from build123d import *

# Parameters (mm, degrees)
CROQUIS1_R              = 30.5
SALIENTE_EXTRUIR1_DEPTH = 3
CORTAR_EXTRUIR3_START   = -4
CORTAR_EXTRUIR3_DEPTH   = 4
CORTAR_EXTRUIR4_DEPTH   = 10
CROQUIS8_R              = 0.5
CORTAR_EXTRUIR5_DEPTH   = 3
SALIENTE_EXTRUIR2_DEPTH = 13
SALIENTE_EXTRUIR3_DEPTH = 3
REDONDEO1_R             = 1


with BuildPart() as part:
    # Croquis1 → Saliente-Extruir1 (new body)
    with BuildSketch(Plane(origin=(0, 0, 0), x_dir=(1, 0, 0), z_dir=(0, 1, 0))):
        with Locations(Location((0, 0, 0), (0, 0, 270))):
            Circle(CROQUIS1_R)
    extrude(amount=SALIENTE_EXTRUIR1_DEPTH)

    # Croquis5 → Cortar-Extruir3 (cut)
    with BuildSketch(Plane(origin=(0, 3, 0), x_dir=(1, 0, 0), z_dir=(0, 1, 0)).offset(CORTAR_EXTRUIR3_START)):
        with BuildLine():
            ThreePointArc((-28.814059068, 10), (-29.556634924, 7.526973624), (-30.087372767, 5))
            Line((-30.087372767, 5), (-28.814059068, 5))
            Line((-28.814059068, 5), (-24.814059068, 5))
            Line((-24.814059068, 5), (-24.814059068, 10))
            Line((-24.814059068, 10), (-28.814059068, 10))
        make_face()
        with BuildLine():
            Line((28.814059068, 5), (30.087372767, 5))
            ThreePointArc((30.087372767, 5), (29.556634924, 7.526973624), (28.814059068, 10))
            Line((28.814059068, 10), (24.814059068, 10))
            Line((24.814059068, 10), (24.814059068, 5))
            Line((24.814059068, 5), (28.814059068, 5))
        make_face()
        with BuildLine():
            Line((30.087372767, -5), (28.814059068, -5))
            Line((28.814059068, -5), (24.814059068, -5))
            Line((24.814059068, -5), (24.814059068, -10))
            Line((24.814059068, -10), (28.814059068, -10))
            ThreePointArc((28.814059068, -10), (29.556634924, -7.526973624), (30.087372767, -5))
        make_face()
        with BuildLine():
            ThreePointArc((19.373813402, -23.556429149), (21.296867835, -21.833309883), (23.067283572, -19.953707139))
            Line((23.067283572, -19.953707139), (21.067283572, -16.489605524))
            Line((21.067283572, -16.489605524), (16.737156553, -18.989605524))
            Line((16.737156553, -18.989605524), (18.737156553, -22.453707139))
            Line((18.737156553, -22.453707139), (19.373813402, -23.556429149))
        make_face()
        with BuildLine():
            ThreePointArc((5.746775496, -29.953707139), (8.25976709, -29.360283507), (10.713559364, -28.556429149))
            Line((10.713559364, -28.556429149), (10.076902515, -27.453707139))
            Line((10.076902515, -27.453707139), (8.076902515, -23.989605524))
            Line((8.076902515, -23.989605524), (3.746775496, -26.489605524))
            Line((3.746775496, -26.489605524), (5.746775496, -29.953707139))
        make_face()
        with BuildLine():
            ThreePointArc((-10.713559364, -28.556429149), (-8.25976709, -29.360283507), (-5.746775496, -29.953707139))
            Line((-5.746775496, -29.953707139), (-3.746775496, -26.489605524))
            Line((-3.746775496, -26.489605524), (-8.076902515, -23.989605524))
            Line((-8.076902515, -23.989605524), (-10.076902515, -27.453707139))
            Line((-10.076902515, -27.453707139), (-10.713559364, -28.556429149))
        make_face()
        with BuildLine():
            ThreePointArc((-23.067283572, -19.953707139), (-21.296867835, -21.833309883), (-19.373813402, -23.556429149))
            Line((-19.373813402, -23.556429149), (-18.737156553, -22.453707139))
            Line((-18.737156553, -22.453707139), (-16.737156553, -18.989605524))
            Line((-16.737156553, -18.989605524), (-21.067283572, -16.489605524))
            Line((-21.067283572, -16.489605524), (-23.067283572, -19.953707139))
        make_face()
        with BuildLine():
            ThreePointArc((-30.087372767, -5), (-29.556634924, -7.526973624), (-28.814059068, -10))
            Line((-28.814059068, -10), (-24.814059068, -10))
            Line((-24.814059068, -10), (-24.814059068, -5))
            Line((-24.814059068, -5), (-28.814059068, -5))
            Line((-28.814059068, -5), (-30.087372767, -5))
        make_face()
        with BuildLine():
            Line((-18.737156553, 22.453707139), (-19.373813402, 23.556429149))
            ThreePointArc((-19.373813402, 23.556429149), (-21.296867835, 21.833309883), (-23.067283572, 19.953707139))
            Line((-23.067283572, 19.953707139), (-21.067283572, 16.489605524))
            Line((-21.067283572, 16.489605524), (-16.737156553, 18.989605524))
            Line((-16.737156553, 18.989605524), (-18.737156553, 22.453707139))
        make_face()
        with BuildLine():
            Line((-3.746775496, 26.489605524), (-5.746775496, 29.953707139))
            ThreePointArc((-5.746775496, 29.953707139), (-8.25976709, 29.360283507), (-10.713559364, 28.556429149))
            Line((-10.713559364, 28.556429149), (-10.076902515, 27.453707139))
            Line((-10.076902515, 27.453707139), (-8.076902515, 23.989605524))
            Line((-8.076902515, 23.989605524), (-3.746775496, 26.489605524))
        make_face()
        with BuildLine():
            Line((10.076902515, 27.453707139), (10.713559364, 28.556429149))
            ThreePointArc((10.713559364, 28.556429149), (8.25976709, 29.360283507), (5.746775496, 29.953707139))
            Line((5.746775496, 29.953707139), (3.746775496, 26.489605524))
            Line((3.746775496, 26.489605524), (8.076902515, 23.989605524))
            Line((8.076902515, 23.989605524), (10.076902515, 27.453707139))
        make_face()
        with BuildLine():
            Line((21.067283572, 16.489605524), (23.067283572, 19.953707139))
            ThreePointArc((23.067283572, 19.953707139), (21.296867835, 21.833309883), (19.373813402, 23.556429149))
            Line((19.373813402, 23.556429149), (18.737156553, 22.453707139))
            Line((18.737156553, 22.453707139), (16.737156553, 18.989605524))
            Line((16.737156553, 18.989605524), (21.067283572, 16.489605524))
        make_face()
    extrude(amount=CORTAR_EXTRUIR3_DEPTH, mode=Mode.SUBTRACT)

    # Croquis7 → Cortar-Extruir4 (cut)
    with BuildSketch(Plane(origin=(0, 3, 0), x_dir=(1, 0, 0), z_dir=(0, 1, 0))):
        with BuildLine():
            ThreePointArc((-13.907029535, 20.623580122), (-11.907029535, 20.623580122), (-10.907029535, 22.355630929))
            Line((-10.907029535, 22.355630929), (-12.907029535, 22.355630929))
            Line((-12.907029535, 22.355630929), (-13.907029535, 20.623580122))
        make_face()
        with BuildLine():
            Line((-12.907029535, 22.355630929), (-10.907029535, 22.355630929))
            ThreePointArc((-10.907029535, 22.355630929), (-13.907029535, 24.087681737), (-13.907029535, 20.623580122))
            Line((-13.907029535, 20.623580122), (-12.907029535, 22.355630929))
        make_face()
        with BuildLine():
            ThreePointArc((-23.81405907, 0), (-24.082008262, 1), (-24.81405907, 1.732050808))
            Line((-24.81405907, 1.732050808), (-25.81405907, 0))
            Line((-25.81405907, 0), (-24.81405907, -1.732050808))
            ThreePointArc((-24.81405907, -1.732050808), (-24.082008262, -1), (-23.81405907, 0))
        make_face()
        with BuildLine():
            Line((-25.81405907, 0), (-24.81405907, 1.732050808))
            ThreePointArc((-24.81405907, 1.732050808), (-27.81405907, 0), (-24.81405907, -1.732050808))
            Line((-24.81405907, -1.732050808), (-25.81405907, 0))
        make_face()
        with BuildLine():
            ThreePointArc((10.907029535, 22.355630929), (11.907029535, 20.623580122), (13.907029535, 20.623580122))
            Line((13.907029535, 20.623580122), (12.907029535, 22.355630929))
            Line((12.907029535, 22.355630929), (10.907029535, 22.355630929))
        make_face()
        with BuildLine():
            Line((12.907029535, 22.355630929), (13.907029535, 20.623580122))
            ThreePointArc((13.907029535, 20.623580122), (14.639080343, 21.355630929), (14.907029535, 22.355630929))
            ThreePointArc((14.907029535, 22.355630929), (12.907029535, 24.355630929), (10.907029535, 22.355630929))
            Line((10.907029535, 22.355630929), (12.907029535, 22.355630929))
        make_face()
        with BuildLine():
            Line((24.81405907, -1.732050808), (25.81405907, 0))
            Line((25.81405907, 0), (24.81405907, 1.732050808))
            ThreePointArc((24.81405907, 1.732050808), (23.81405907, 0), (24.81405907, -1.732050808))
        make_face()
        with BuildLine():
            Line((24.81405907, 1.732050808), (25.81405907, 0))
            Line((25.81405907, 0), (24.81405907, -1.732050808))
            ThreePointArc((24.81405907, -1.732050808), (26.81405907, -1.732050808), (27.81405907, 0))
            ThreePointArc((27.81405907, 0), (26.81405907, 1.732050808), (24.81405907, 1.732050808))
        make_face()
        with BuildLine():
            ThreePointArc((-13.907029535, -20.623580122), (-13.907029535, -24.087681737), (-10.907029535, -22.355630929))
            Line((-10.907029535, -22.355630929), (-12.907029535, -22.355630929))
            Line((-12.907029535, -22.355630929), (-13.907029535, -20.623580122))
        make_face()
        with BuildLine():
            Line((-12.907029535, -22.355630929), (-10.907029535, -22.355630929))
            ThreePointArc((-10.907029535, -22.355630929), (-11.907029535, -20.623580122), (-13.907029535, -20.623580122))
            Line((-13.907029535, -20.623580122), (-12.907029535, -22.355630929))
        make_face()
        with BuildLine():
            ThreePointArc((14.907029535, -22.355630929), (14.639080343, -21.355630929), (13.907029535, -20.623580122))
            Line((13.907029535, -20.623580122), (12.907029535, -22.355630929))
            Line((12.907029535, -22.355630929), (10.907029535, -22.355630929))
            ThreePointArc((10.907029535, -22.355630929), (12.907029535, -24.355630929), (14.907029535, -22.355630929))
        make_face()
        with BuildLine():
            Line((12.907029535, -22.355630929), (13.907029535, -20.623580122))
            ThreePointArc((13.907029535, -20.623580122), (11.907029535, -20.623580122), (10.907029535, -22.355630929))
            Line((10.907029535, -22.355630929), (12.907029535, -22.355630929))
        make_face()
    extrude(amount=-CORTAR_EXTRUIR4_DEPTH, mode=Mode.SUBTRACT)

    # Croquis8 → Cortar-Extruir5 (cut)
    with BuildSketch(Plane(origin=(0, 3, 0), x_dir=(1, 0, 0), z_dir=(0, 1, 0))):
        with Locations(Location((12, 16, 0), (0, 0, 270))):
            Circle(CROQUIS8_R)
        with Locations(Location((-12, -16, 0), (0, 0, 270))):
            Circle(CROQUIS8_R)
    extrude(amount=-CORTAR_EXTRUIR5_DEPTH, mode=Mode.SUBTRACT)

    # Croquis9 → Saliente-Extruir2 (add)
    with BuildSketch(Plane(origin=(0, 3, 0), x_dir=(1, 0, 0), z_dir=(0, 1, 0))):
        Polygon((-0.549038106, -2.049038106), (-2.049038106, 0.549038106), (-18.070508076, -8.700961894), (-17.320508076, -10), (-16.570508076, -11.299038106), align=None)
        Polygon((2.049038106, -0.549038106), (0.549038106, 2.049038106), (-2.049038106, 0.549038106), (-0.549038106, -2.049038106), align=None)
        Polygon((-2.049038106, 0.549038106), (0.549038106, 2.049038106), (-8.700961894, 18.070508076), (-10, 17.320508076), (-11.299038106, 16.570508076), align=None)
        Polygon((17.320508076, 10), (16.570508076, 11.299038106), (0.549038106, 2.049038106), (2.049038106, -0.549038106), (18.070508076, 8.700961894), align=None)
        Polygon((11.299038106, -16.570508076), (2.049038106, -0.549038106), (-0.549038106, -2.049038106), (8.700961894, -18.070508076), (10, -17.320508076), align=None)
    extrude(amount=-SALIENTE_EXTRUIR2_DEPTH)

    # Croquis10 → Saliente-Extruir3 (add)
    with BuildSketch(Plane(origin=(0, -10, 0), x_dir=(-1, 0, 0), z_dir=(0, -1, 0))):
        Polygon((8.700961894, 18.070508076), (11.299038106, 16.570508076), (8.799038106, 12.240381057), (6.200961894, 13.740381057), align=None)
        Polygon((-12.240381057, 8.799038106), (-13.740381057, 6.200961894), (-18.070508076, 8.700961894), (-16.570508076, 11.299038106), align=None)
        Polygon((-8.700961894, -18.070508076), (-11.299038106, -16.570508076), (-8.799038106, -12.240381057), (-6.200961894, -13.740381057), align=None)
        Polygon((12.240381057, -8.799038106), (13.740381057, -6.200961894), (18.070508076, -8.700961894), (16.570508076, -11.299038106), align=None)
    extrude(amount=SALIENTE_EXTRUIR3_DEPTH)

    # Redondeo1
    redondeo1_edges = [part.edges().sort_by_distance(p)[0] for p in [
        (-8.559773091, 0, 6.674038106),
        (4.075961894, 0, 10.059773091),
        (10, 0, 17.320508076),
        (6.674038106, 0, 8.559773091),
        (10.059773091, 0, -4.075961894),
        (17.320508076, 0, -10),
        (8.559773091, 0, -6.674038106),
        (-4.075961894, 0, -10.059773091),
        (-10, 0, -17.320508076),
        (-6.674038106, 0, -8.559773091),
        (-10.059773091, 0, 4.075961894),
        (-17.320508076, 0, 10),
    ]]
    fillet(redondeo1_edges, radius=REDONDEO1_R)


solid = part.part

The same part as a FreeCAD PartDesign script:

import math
import FreeCAD as App
import Part
import Sketcher
from FreeCAD import Vector
Q = App.Units.Quantity


def edges_at(feature, points):
    """Names of the edges that pass closest to the given points."""
    edges = feature.Shape.Edges
    near = lambda p: min(range(len(edges)), key=lambda i: edges[i].distToShape(Part.Vertex(*p))[0])
    return sorted({f"Edge{near(p) + 1}" for p in points})


def add_polygon(sketch, points):
    """Adds a closed chain of lines whose ends are joined by coincident constraints."""
    first, n = sketch.GeometryCount, len(points)
    for a, b in zip(points, points[1:] + points[:1]):
        sketch.addGeometry(Part.LineSegment(App.Vector(*a, 0), App.Vector(*b, 0)), False)
    for i in range(n):
        sketch.addConstraint(Sketcher.Constraint("Coincident", first + i, 2, first + (i + 1) % n, 1))

doc = App.newDocument("Part")
body = doc.addObject("PartDesign::Body", "Body")

sketch1 = body.newObject("Sketcher::SketchObject", "Sketch")
sketch1.AttachmentSupport = (doc.getObject("XZ_Plane"), [""])
sketch1.MapMode = "FlatFace"
sketch1.addGeometry(Part.Circle(Vector(0, 0, 0), Vector(0, 0, 1), 30), False)
sketch1.addConstraint(Sketcher.Constraint("Coincident", 0, 3, -1, 1))
sketch1.addConstraint(Sketcher.Constraint("Diameter", 0, Q("61 mm")))
pad1 = body.newObject("PartDesign::Pad", "Pad")
pad1.Profile = sketch1
pad1.Length = 3
pad1.Reversed = True

sketch2 = body.newObject("Sketcher::SketchObject", "Sketch001")
sketch2.AttachmentSupport = (doc.getObject("XZ_Plane"), [""])
sketch2.MapMode = "FlatFace"
sketch2.AttachmentOffset = App.Placement(Vector(0, 0, 1), App.Rotation())
sketch2.addGeometry(Part.ArcOfCircle(Part.Circle(Vector(0, 0, 0), Vector(0, 0, 1), 30.5), math.radians(-170.56), math.radians(-160.86)), False)
sketch2.addGeometry(Part.LineSegment(Vector(-30.1, -5, 0), Vector(-24.8, -5, 0)), False)
sketch2.addGeometry(Part.LineSegment(Vector(-24.8, -5, 0), Vector(-24.8, -10, 0)), False)
sketch2.addGeometry(Part.LineSegment(Vector(-24.8, -10, 0), Vector(-28.8, -10, 0)), False)
sketch2.addGeometry(Part.ArcOfCircle(Part.Circle(Vector(0, 0, 0), Vector(0, 0, 1), 30.5), math.radians(-19.14), math.radians(-9.44)), False)
sketch2.addGeometry(Part.LineSegment(Vector(28.8, -10, 0), Vector(24.8, -10, 0)), False)
sketch2.addGeometry(Part.LineSegment(Vector(24.8, -10, 0), Vector(24.8, -5, 0)), False)
sketch2.addGeometry(Part.LineSegment(Vector(24.8, -5, 0), Vector(30.1, -5, 0)), False)
sketch2.addGeometry(Part.LineSegment(Vector(30.1, 5, 0), Vector(24.8, 5, 0)), False)
sketch2.addGeometry(Part.LineSegment(Vector(24.8, 5, 0), Vector(24.8, 10, 0)), False)
sketch2.addGeometry(Part.LineSegment(Vector(24.8, 10, 0), Vector(28.8, 10, 0)), False)
sketch2.addGeometry(Part.ArcOfCircle(Part.Circle(Vector(0, 0, 0), Vector(0, 0, 1), 30.5), math.radians(9.44), math.radians(19.14)), False)
sketch2.addGeometry(Part.ArcOfCircle(Part.Circle(Vector(0, 0, 0), Vector(0, 0, 1), 30.5), math.radians(40.86), math.radians(50.56)), False)
sketch2.addGeometry(Part.LineSegment(Vector(23.1, 20, 0), Vector(21.1, 16.5, 0)), False)
sketch2.addGeometry(Part.LineSegment(Vector(21.1, 16.5, 0), Vector(16.7, 19, 0)), False)
sketch2.addGeometry(Part.LineSegment(Vector(16.7, 19, 0), Vector(18.7, 22.5, 0)), False)
sketch2.addGeometry(Part.LineSegment(Vector(18.7, 22.5, 0), Vector(19.4, 23.6, 0)), False)
sketch2.addGeometry(Part.ArcOfCircle(Part.Circle(Vector(0, 0, 0), Vector(0, 0, 1), 30.5), math.radians(69.44), math.radians(79.14)), False)
sketch2.addGeometry(Part.LineSegment(Vector(10.7, 28.6, 0), Vector(10.1, 27.5, 0)), False)
sketch2.addGeometry(Part.LineSegment(Vector(10.1, 27.5, 0), Vector(8.1, 24, 0)), False)
sketch2.addGeometry(Part.LineSegment(Vector(8.1, 24, 0), Vector(3.7, 26.5, 0)), False)
sketch2.addGeometry(Part.LineSegment(Vector(3.7, 26.5, 0), Vector(5.7, 30, 0)), False)
sketch2.addGeometry(Part.ArcOfCircle(Part.Circle(Vector(0, 0, 0), Vector(0, 0, 1), 30.5), math.radians(100.86), math.radians(110.56)), False)
sketch2.addGeometry(Part.LineSegment(Vector(-5.7, 30, 0), Vector(-3.7, 26.5, 0)), False)
sketch2.addGeometry(Part.LineSegment(Vector(-3.7, 26.5, 0), Vector(-8.1, 24, 0)), False)
sketch2.addGeometry(Part.LineSegment(Vector(-8.1, 24, 0), Vector(-10.1, 27.5, 0)), False)
sketch2.addGeometry(Part.LineSegment(Vector(-10.1, 27.5, 0), Vector(-10.7, 28.6, 0)), False)
sketch2.addGeometry(Part.ArcOfCircle(Part.Circle(Vector(0, 0, 0), Vector(0, 0, 1), 30.5), math.radians(129.44), math.radians(139.14)), False)
sketch2.addGeometry(Part.LineSegment(Vector(-19.4, 23.6, 0), Vector(-18.7, 22.5, 0)), False)
sketch2.addGeometry(Part.LineSegment(Vector(-18.7, 22.5, 0), Vector(-16.7, 19, 0)), False)
sketch2.addGeometry(Part.LineSegment(Vector(-16.7, 19, 0), Vector(-21.1, 16.5, 0)), False)
sketch2.addGeometry(Part.LineSegment(Vector(-21.1, 16.5, 0), Vector(-23.1, 20, 0)), False)
sketch2.addGeometry(Part.ArcOfCircle(Part.Circle(Vector(0, 0, 0), Vector(0, 0, 1), 30.5), math.radians(160.86), math.radians(170.56)), False)
sketch2.addGeometry(Part.LineSegment(Vector(-28.8, 10, 0), Vector(-24.8, 10, 0)), False)
sketch2.addGeometry(Part.LineSegment(Vector(-24.8, 10, 0), Vector(-24.8, 5, 0)), False)
sketch2.addGeometry(Part.LineSegment(Vector(-24.8, 5, 0), Vector(-30.1, 5, 0)), False)
sketch2.addGeometry(Part.LineSegment(Vector(-18.7, -22.5, 0), Vector(-19.4, -23.6, 0)), False)
sketch2.addGeometry(Part.ArcOfCircle(Part.Circle(Vector(0, 0, 0), Vector(0, 0, 1), 30.5), math.radians(-139.14), math.radians(-129.44)), False)
sketch2.addGeometry(Part.LineSegment(Vector(-23.1, -20, 0), Vector(-21.1, -16.5, 0)), False)
sketch2.addGeometry(Part.LineSegment(Vector(-21.1, -16.5, 0), Vector(-16.7, -19, 0)), False)
sketch2.addGeometry(Part.LineSegment(Vector(-16.7, -19, 0), Vector(-18.7, -22.5, 0)), False)
sketch2.addGeometry(Part.LineSegment(Vector(-3.7, -26.5, 0), Vector(-5.7, -30, 0)), False)
sketch2.addGeometry(Part.ArcOfCircle(Part.Circle(Vector(0, 0, 0), Vector(0, 0, 1), 30.5), math.radians(-110.56), math.radians(-100.86)), False)
sketch2.addGeometry(Part.LineSegment(Vector(-10.7, -28.6, 0), Vector(-10.1, -27.5, 0)), False)
sketch2.addGeometry(Part.LineSegment(Vector(-10.1, -27.5, 0), Vector(-8.1, -24, 0)), False)
sketch2.addGeometry(Part.LineSegment(Vector(-8.1, -24, 0), Vector(-3.7, -26.5, 0)), False)
sketch2.addGeometry(Part.LineSegment(Vector(10.1, -27.5, 0), Vector(10.7, -28.6, 0)), False)
sketch2.addGeometry(Part.ArcOfCircle(Part.Circle(Vector(0, 0, 0), Vector(0, 0, 1), 30.5), math.radians(-79.14), math.radians(-69.44)), False)
sketch2.addGeometry(Part.LineSegment(Vector(5.7, -30, 0), Vector(3.7, -26.5, 0)), False)
sketch2.addGeometry(Part.LineSegment(Vector(3.7, -26.5, 0), Vector(8.1, -24, 0)), False)
sketch2.addGeometry(Part.LineSegment(Vector(8.1, -24, 0), Vector(10.1, -27.5, 0)), False)
sketch2.addGeometry(Part.LineSegment(Vector(21.1, -16.5, 0), Vector(23.1, -20, 0)), False)
sketch2.addGeometry(Part.ArcOfCircle(Part.Circle(Vector(0, 0, 0), Vector(0, 0, 1), 30.5), math.radians(-50.56), math.radians(-40.86)), False)
sketch2.addGeometry(Part.LineSegment(Vector(19.4, -23.6, 0), Vector(18.7, -22.5, 0)), False)
sketch2.addGeometry(Part.LineSegment(Vector(18.7, -22.5, 0), Vector(16.7, -19, 0)), False)
sketch2.addGeometry(Part.LineSegment(Vector(16.7, -19, 0), Vector(21.1, -16.5, 0)), False)
sketch2.addConstraint(Sketcher.Constraint("Coincident", 0, 1, 1, 1))
sketch2.addConstraint(Sketcher.Constraint("Coincident", 1, 2, 2, 1))
sketch2.addConstraint(Sketcher.Constraint("Coincident", 2, 2, 3, 1))
sketch2.addConstraint(Sketcher.Constraint("Coincident", 3, 2, 0, 2))
sketch2.addConstraint(Sketcher.Constraint("Coincident", 4, 1, 5, 1))
sketch2.addConstraint(Sketcher.Constraint("Coincident", 5, 2, 6, 1))
sketch2.addConstraint(Sketcher.Constraint("Coincident", 6, 2, 7, 1))
sketch2.addConstraint(Sketcher.Constraint("Coincident", 7, 2, 4, 2))
sketch2.addConstraint(Sketcher.Constraint("Coincident", 8, 2, 9, 1))
sketch2.addConstraint(Sketcher.Constraint("Coincident", 9, 2, 10, 1))
sketch2.addConstraint(Sketcher.Constraint("Coincident", 10, 2, 11, 2))
sketch2.addConstraint(Sketcher.Constraint("Coincident", 11, 1, 8, 1))
sketch2.addConstraint(Sketcher.Constraint("Coincident", 12, 1, 13, 1))
sketch2.addConstraint(Sketcher.Constraint("Coincident", 13, 2, 14, 1))
sketch2.addConstraint(Sketcher.Constraint("Coincident", 14, 2, 15, 1))
sketch2.addConstraint(Sketcher.Constraint("Coincident", 15, 2, 16, 1))
sketch2.addConstraint(Sketcher.Constraint("Coincident", 16, 2, 12, 2))
sketch2.addConstraint(Sketcher.Constraint("Coincident", 17, 1, 18, 1))
sketch2.addConstraint(Sketcher.Constraint("Coincident", 18, 2, 19, 1))
sketch2.addConstraint(Sketcher.Constraint("Coincident", 19, 2, 20, 1))
sketch2.addConstraint(Sketcher.Constraint("Coincident", 20, 2, 21, 1))
sketch2.addConstraint(Sketcher.Constraint("Coincident", 21, 2, 17, 2))
sketch2.addConstraint(Sketcher.Constraint("Coincident", 22, 1, 23, 1))
sketch2.addConstraint(Sketcher.Constraint("Coincident", 23, 2, 24, 1))
sketch2.addConstraint(Sketcher.Constraint("Coincident", 24, 2, 25, 1))
sketch2.addConstraint(Sketcher.Constraint("Coincident", 25, 2, 26, 1))
sketch2.addConstraint(Sketcher.Constraint("Coincident", 26, 2, 22, 2))
sketch2.addConstraint(Sketcher.Constraint("Coincident", 27, 1, 28, 1))
sketch2.addConstraint(Sketcher.Constraint("Coincident", 28, 2, 29, 1))
sketch2.addConstraint(Sketcher.Constraint("Coincident", 29, 2, 30, 1))
sketch2.addConstraint(Sketcher.Constraint("Coincident", 30, 2, 31, 1))
sketch2.addConstraint(Sketcher.Constraint("Coincident", 31, 2, 27, 2))
sketch2.addConstraint(Sketcher.Constraint("Coincident", 32, 1, 33, 1))
sketch2.addConstraint(Sketcher.Constraint("Coincident", 33, 2, 34, 1))
sketch2.addConstraint(Sketcher.Constraint("Coincident", 34, 2, 35, 1))
sketch2.addConstraint(Sketcher.Constraint("Coincident", 35, 2, 32, 2))
sketch2.addConstraint(Sketcher.Constraint("Coincident", 36, 2, 37, 2))
sketch2.addConstraint(Sketcher.Constraint("Coincident", 37, 1, 38, 1))
sketch2.addConstraint(Sketcher.Constraint("Coincident", 38, 2, 39, 1))
sketch2.addConstraint(Sketcher.Constraint("Coincident", 39, 2, 40, 1))
sketch2.addConstraint(Sketcher.Constraint("Coincident", 40, 2, 36, 1))
sketch2.addConstraint(Sketcher.Constraint("Coincident", 41, 2, 42, 2))
sketch2.addConstraint(Sketcher.Constraint("Coincident", 42, 1, 43, 1))
sketch2.addConstraint(Sketcher.Constraint("Coincident", 43, 2, 44, 1))
sketch2.addConstraint(Sketcher.Constraint("Coincident", 44, 2, 45, 1))
sketch2.addConstraint(Sketcher.Constraint("Coincident", 45, 2, 41, 1))
sketch2.addConstraint(Sketcher.Constraint("Coincident", 46, 2, 47, 2))
sketch2.addConstraint(Sketcher.Constraint("Coincident", 47, 1, 48, 1))
sketch2.addConstraint(Sketcher.Constraint("Coincident", 48, 2, 49, 1))
sketch2.addConstraint(Sketcher.Constraint("Coincident", 49, 2, 50, 1))
sketch2.addConstraint(Sketcher.Constraint("Coincident", 50, 2, 46, 1))
sketch2.addConstraint(Sketcher.Constraint("Coincident", 51, 2, 52, 2))
sketch2.addConstraint(Sketcher.Constraint("Coincident", 52, 1, 53, 1))
sketch2.addConstraint(Sketcher.Constraint("Coincident", 53, 2, 54, 1))
sketch2.addConstraint(Sketcher.Constraint("Coincident", 54, 2, 55, 1))
sketch2.addConstraint(Sketcher.Constraint("Coincident", 55, 2, 51, 1))
sketch2.addConstraint(Sketcher.Constraint("Horizontal", 1))
sketch2.addConstraint(Sketcher.Constraint("Vertical", 2))
sketch2.addConstraint(Sketcher.Constraint("Horizontal", 3))
sketch2.addConstraint(Sketcher.Constraint("Horizontal", 5))
sketch2.addConstraint(Sketcher.Constraint("Vertical", 6))
sketch2.addConstraint(Sketcher.Constraint("Horizontal", 7))
sketch2.addConstraint(Sketcher.Constraint("Horizontal", 8))
sketch2.addConstraint(Sketcher.Constraint("Vertical", 9))
sketch2.addConstraint(Sketcher.Constraint("Horizontal", 10))
sketch2.addConstraint(Sketcher.Constraint("Horizontal", 33))
sketch2.addConstraint(Sketcher.Constraint("Vertical", 34))
sketch2.addConstraint(Sketcher.Constraint("Horizontal", 35))
sketch2.addConstraint(Sketcher.Constraint("Coincident", 0, 3, -1, 1))
sketch2.addConstraint(Sketcher.Constraint("Coincident", 4, 3, -1, 1))
sketch2.addConstraint(Sketcher.Constraint("Coincident", 11, 3, -1, 1))
sketch2.addConstraint(Sketcher.Constraint("Coincident", 12, 3, -1, 1))
sketch2.addConstraint(Sketcher.Constraint("Coincident", 17, 3, -1, 1))
sketch2.addConstraint(Sketcher.Constraint("Coincident", 22, 3, -1, 1))
sketch2.addConstraint(Sketcher.Constraint("Coincident", 27, 3, -1, 1))
sketch2.addConstraint(Sketcher.Constraint("Coincident", 32, 3, -1, 1))
sketch2.addConstraint(Sketcher.Constraint("Coincident", 37, 3, -1, 1))
sketch2.addConstraint(Sketcher.Constraint("Coincident", 42, 3, -1, 1))
sketch2.addConstraint(Sketcher.Constraint("Coincident", 47, 3, -1, 1))
sketch2.addConstraint(Sketcher.Constraint("Coincident", 52, 3, -1, 1))
sketch2.addConstraint(Sketcher.Constraint("Equal", 0, 4))
sketch2.addConstraint(Sketcher.Constraint("Equal", 4, 11))
sketch2.addConstraint(Sketcher.Constraint("Equal", 11, 12))
sketch2.addConstraint(Sketcher.Constraint("Equal", 12, 17))
sketch2.addConstraint(Sketcher.Constraint("Equal", 17, 22))
sketch2.addConstraint(Sketcher.Constraint("Equal", 22, 27))
sketch2.addConstraint(Sketcher.Constraint("Equal", 27, 32))
sketch2.addConstraint(Sketcher.Constraint("Equal", 32, 37))
sketch2.addConstraint(Sketcher.Constraint("Equal", 37, 42))
sketch2.addConstraint(Sketcher.Constraint("Equal", 42, 47))
sketch2.addConstraint(Sketcher.Constraint("Equal", 47, 52))
sketch2.addConstraint(Sketcher.Constraint("Symmetric", 1, 2, 8, 2, -1, 1))
sketch2.addConstraint(Sketcher.Constraint("Symmetric", 5, 2, 33, 2, -1, 1))
sketch2.addConstraint(Sketcher.Constraint("Symmetric", 13, 2, 38, 2, -1, 1))
sketch2.addConstraint(Sketcher.Constraint("Symmetric", 14, 2, 39, 2, -1, 1))
sketch2.addConstraint(Sketcher.Constraint("Symmetric", 15, 2, 40, 2, -1, 1))
sketch2.addConstraint(Sketcher.Constraint("Symmetric", 18, 2, 43, 2, -1, 1))
sketch2.addConstraint(Sketcher.Constraint("Symmetric", 19, 2, 44, 2, -1, 1))
sketch2.addConstraint(Sketcher.Constraint("Symmetric", 20, 2, 45, 2, -1, 1))
sketch2.addConstraint(Sketcher.Constraint("Symmetric", 23, 2, 48, 2, -1, 1))
sketch2.addConstraint(Sketcher.Constraint("Symmetric", 24, 2, 49, 2, -1, 1))
sketch2.addConstraint(Sketcher.Constraint("Symmetric", 25, 2, 50, 2, -1, 1))
sketch2.addConstraint(Sketcher.Constraint("Symmetric", 28, 2, 53, 2, -1, 1))
sketch2.addConstraint(Sketcher.Constraint("Symmetric", 29, 2, 54, 2, -1, 1))
sketch2.addConstraint(Sketcher.Constraint("Symmetric", 30, 2, 55, 2, -1, 1))
sketch2.addConstraint(Sketcher.Constraint("Symmetric", 2, 2, 5, 2, -2))
sketch2.addConstraint(Sketcher.Constraint("Symmetric", 20, 2, 23, 2, -2))
sketch2.addConstraint(Sketcher.Constraint("Symmetric", 19, 2, 24, 2, -2))
sketch2.addConstraint(Sketcher.Constraint("Symmetric", 18, 2, 25, 2, -2))
sketch2.addConstraint(Sketcher.Constraint("Symmetric", 15, 2, 28, 2, -2))
sketch2.addConstraint(Sketcher.Constraint("Symmetric", 14, 2, 29, 2, -2))
sketch2.addConstraint(Sketcher.Constraint("Symmetric", 13, 2, 30, 2, -2))
sketch2.addConstraint(Sketcher.Constraint("Perpendicular", 13, 14))
sketch2.addConstraint(Sketcher.Constraint("Perpendicular", 14, 15))
sketch2.addConstraint(Sketcher.Constraint("Parallel", 15, 16))
sketch2.addConstraint(Sketcher.Constraint("Parallel", 16, 18))
sketch2.addConstraint(Sketcher.Constraint("Parallel", 18, 19))
sketch2.addConstraint(Sketcher.Constraint("Perpendicular", 19, 20))
sketch2.addConstraint(Sketcher.Constraint("Perpendicular", 20, 21))
sketch2.addConstraint(Sketcher.Constraint("Perpendicular", 23, 24))
sketch2.addConstraint(Sketcher.Constraint("Parallel", 25, 26))
sketch2.addConstraint(Sketcher.Constraint("Parallel", 26, 28))
sketch2.addConstraint(Sketcher.Constraint("Perpendicular", 30, 31))
sketch2.addConstraint(Sketcher.Constraint("Parallel", 21, 36))
sketch2.addConstraint(Sketcher.Constraint("Parallel", 36, 38))
sketch2.addConstraint(Sketcher.Constraint("Parallel", 40, 41))
sketch2.addConstraint(Sketcher.Constraint("Parallel", 41, 43))
sketch2.addConstraint(Sketcher.Constraint("Parallel", 31, 46))
sketch2.addConstraint(Sketcher.Constraint("Parallel", 46, 48))
sketch2.addConstraint(Sketcher.Constraint("Parallel", 50, 51))
sketch2.addConstraint(Sketcher.Constraint("Parallel", 51, 53))
sketch2.addConstraint(Sketcher.Constraint("Horizontal", 1, 2, 6, 2))
sketch2.addConstraint(Sketcher.Constraint("Horizontal", 10, 2, 32, 1))
sketch2.addConstraint(Sketcher.Constraint("Horizontal", 11, 1, 34, 2))
sketch2.addConstraint(Sketcher.Constraint("Equal", 13, 15))
sketch2.addConstraint(Sketcher.Constraint("Equal", 16, 18))
sketch2.addConstraint(Sketcher.Constraint("Equal", 15, 19))
sketch2.addConstraint(Sketcher.Constraint("Equal", 14, 20))
sketch2.addConstraint(Sketcher.Constraint("Equal", 19, 21))
sketch2.addConstraint(Sketcher.Constraint("Radius", 0, Q("30.5 mm")))
sketch2.addConstraint(Sketcher.Constraint("DistanceX", 3, 2, 3, 1, Q("4 mm")))
sketch2.addConstraint(Sketcher.Constraint("DistanceY", 2, 2, 2, 1, Q("5 mm")))
sketch2.addConstraint(Sketcher.Constraint("Angle", 13, Q("-120 deg")))
sketch2.addConstraint(Sketcher.Constraint("Distance", 13, Q("4 mm")))
sketch2.addConstraint(Sketcher.Constraint("Distance", 14, Q("5 mm")))
sketch2.addConstraint(Sketcher.Constraint("DistanceY", 0, 1, -1, 1, Q("5 mm")))
sketch2.addConstraint(Sketcher.Constraint("DistanceY", -1, 1, 16, 2, Q("23.556429 mm")))
pocket1 = body.newObject("PartDesign::Pocket", "Pocket")
pocket1.Profile = sketch2
pocket1.Length = 4

sketch3 = body.newObject("Sketcher::SketchObject", "Sketch002")
sketch3.AttachmentSupport = (doc.getObject("XZ_Plane"), [""])
sketch3.MapMode = "FlatFace"
sketch3.AttachmentOffset = App.Placement(Vector(0, 0, -3), App.Rotation())
sketch3.addGeometry(Part.ArcOfCircle(Part.Circle(Vector(-12.9, -22.4, 0), Vector(0, 0, 1), 2), math.radians(0), math.radians(120)), False)
sketch3.addGeometry(Part.ArcOfCircle(Part.Circle(Vector(-12.9, -22.4, 0), Vector(0, 0, 1), 2), math.radians(120), math.radians(360)), False)
sketch3.addGeometry(Part.ArcOfCircle(Part.Circle(Vector(-25.8, 0, 0), Vector(0, 0, 1), 2), math.radians(-60), math.radians(0)), False)
sketch3.addGeometry(Part.ArcOfCircle(Part.Circle(Vector(-25.8, 0, 0), Vector(0, 0, 1), 2), math.radians(60), math.radians(300)), False)
sketch3.addGeometry(Part.ArcOfCircle(Part.Circle(Vector(-25.8, 0, 0), Vector(0, 0, 1), 2), math.radians(0), math.radians(60)), False)
sketch3.addGeometry(Part.ArcOfCircle(Part.Circle(Vector(12.9, -22.4, 0), Vector(0, 0, 1), 2), math.radians(60), math.radians(180)), False)
sketch3.addGeometry(Part.ArcOfCircle(Part.Circle(Vector(12.9, -22.4, 0), Vector(0, 0, 1), 2), math.radians(0), math.radians(60)), False)
sketch3.addGeometry(Part.ArcOfCircle(Part.Circle(Vector(12.9, -22.4, 0), Vector(0, 0, 1), 2), math.radians(180), math.radians(360)), False)
sketch3.addGeometry(Part.ArcOfCircle(Part.Circle(Vector(25.8, 0, 0), Vector(0, 0, 1), 2), math.radians(120), math.radians(240)), False)
sketch3.addGeometry(Part.ArcOfCircle(Part.Circle(Vector(25.8, 0, 0), Vector(0, 0, 1), 2), math.radians(0), math.radians(120)), False)
sketch3.addGeometry(Part.ArcOfCircle(Part.Circle(Vector(25.8, 0, 0), Vector(0, 0, 1), 2), math.radians(-120), math.radians(0)), False)
sketch3.addGeometry(Part.ArcOfCircle(Part.Circle(Vector(-12.9, 22.4, 0), Vector(0, 0, 1), 2), math.radians(0), math.radians(240)), False)
sketch3.addGeometry(Part.ArcOfCircle(Part.Circle(Vector(-12.9, 22.4, 0), Vector(0, 0, 1), 2), math.radians(-120), math.radians(0)), False)
sketch3.addGeometry(Part.ArcOfCircle(Part.Circle(Vector(12.9, 22.4, 0), Vector(0, 0, 1), 2), math.radians(-60), math.radians(0)), False)
sketch3.addGeometry(Part.ArcOfCircle(Part.Circle(Vector(12.9, 22.4, 0), Vector(0, 0, 1), 2), math.radians(-180), math.radians(-60)), False)
sketch3.addGeometry(Part.ArcOfCircle(Part.Circle(Vector(12.9, 22.4, 0), Vector(0, 0, 1), 2), math.radians(0), math.radians(180)), False)
sketch3.addConstraint(Sketcher.Constraint("Tangent", 0, 1, 1, 2))
sketch3.addConstraint(Sketcher.Constraint("Coincident", 1, 1, 0, 2))
sketch3.addConstraint(Sketcher.Constraint("Tangent", 2, 1, 3, 2))
sketch3.addConstraint(Sketcher.Constraint("Tangent", 3, 1, 4, 2))
sketch3.addConstraint(Sketcher.Constraint("Tangent", 4, 1, 2, 2))
sketch3.addConstraint(Sketcher.Constraint("Tangent", 5, 1, 6, 2))
sketch3.addConstraint(Sketcher.Constraint("Tangent", 6, 1, 7, 2))
sketch3.addConstraint(Sketcher.Constraint("Tangent", 7, 1, 5, 2))
sketch3.addConstraint(Sketcher.Constraint("Tangent", 8, 1, 9, 2))
sketch3.addConstraint(Sketcher.Constraint("Tangent", 9, 1, 10, 2))
sketch3.addConstraint(Sketcher.Constraint("Tangent", 10, 1, 8, 2))
sketch3.addConstraint(Sketcher.Constraint("Tangent", 11, 1, 12, 2))
sketch3.addConstraint(Sketcher.Constraint("Coincident", 12, 1, 11, 2))
sketch3.addConstraint(Sketcher.Constraint("Tangent", 13, 1, 14, 2))
sketch3.addConstraint(Sketcher.Constraint("Tangent", 14, 1, 15, 2))
sketch3.addConstraint(Sketcher.Constraint("Tangent", 15, 1, 13, 2))
sketch3.addConstraint(Sketcher.Constraint("Equal", 1, 2))
sketch3.addConstraint(Sketcher.Constraint("Equal", 4, 5))
sketch3.addConstraint(Sketcher.Constraint("Equal", 7, 8))
sketch3.addConstraint(Sketcher.Constraint("Equal", 10, 11))
sketch3.addConstraint(Sketcher.Constraint("Equal", 12, 13))
sketch3.addConstraint(Sketcher.Constraint("Symmetric", 2, 3, 8, 3, -1, 1))
sketch3.addConstraint(Sketcher.Constraint("Symmetric", 5, 3, 11, 3, -1, 1))
sketch3.addConstraint(Sketcher.Constraint("Symmetric", 0, 3, 13, 3, -1, 1))
sketch3.addConstraint(Sketcher.Constraint("Symmetric", 0, 3, 5, 3, -2))
sketch3.addConstraint(Sketcher.Constraint("Symmetric", 3, 1, 8, 1, -2))
sketch3.addConstraint(Sketcher.Constraint("PointOnObject", 4, 1, -1))
sketch3.addConstraint(Sketcher.Constraint("PointOnObject", 9, 1, -1))
sketch3.addConstraint(Sketcher.Constraint("Horizontal", 7, 3, 0, 1))
sketch3.addConstraint(Sketcher.Constraint("Horizontal", 1, 1, 5, 1))
sketch3.addConstraint(Sketcher.Constraint("Horizontal", 0, 1, 6, 1))
sketch3.addConstraint(Sketcher.Constraint("Horizontal", 6, 1, 7, 1))
sketch3.addConstraint(Sketcher.Constraint("Horizontal", 2, 1, 10, 1))
sketch3.addConstraint(Sketcher.Constraint("Horizontal", 15, 3, 11, 1))
sketch3.addConstraint(Sketcher.Constraint("Horizontal", 12, 1, 13, 1))
sketch3.addConstraint(Sketcher.Constraint("Horizontal", 11, 1, 14, 1))
sketch3.addConstraint(Sketcher.Constraint("Horizontal", 14, 1, 15, 1))
sketch3.addConstraint(Sketcher.Constraint("Vertical", 2, 1, 3, 1))
sketch3.addConstraint(Sketcher.Constraint("Vertical", 1, 1, 12, 1))
sketch3.addConstraint(Sketcher.Constraint("Radius", 0, Q("2 mm")))
sketch3.addConstraint(Sketcher.Constraint("DistanceX", 1, 1, 0, 3, Q("1 mm")))
sketch3.addConstraint(Sketcher.Constraint("DistanceX", 2, 3, 2, 1, Q("1 mm")))
sketch3.addConstraint(Sketcher.Constraint("DistanceX", 0, 3, -1, 1, Q("12.90703 mm")))
sketch3.addConstraint(Sketcher.Constraint("DistanceY", 0, 3, -1, 1, Q("22.355631 mm")))
sketch3.addConstraint(Sketcher.Constraint("DistanceX", 2, 3, -1, 1, Q("25.814059 mm")))
pocket2 = body.newObject("PartDesign::Pocket", "Pocket001")
pocket2.Profile = sketch3
pocket2.Length = 10
pocket2.Reversed = True

sketch4 = body.newObject("Sketcher::SketchObject", "Sketch003")
sketch4.AttachmentSupport = (doc.getObject("XZ_Plane"), [""])
sketch4.MapMode = "FlatFace"
sketch4.AttachmentOffset = App.Placement(Vector(0, 0, -3), App.Rotation())
sketch4.addGeometry(Part.Circle(Vector(12, -16, 0), Vector(0, 0, 1), 0.5), False)
sketch4.addGeometry(Part.Circle(Vector(-12, 16, 0), Vector(0, 0, 1), 0.5), False)
sketch4.addConstraint(Sketcher.Constraint("Equal", 0, 1))
sketch4.addConstraint(Sketcher.Constraint("Symmetric", 0, 3, 1, 3, -1, 1))
sketch4.addConstraint(Sketcher.Constraint("Diameter", 0, Q("1 mm")))
sketch4.addConstraint(Sketcher.Constraint("DistanceX", -1, 1, 0, 3, Q("12 mm")))
sketch4.addConstraint(Sketcher.Constraint("DistanceY", 0, 3, -1, 1, Q("16 mm")))
pocket3 = body.newObject("PartDesign::Pocket", "Pocket002")
pocket3.Profile = sketch4
pocket3.Length = 3
pocket3.Reversed = True

sketch5 = body.newObject("Sketcher::SketchObject", "Sketch004")
sketch5.AttachmentSupport = (doc.getObject("XZ_Plane"), [""])
sketch5.MapMode = "FlatFace"
sketch5.AttachmentOffset = App.Placement(Vector(0, 0, -3), App.Rotation())
add_polygon(sketch5, [(-2, -0.5), (-18.1, 8.7), (-16.6, 11.3), (-0.5, 2), (8.7, 18.1), (11.3, 16.6), (2, 0.5), (18.1, -8.7), (16.6, -11.3), (0.5, -2), (-8.7, -18.1), (-11.3, -16.6)])
sketch5.addConstraint(Sketcher.Constraint("Symmetric", 0, 2, 6, 2, -1, 1))
sketch5.addConstraint(Sketcher.Constraint("Symmetric", 1, 2, 7, 2, -1, 1))
sketch5.addConstraint(Sketcher.Constraint("Symmetric", 2, 2, 8, 2, -1, 1))
sketch5.addConstraint(Sketcher.Constraint("Symmetric", 3, 2, 9, 2, -1, 1))
sketch5.addConstraint(Sketcher.Constraint("Symmetric", 4, 2, 10, 2, -1, 1))
sketch5.addConstraint(Sketcher.Constraint("Symmetric", 5, 2, 11, 2, -1, 1))
sketch5.addConstraint(Sketcher.Constraint("Perpendicular", 0, 1))
sketch5.addConstraint(Sketcher.Constraint("Perpendicular", 1, 2))
sketch5.addConstraint(Sketcher.Constraint("Perpendicular", 2, 3))
sketch5.addConstraint(Sketcher.Constraint("Perpendicular", 3, 4))
sketch5.addConstraint(Sketcher.Constraint("Perpendicular", 4, 5))
sketch5.addConstraint(Sketcher.Constraint("Equal", 0, 2))
sketch5.addConstraint(Sketcher.Constraint("Equal", 2, 3))
sketch5.addConstraint(Sketcher.Constraint("Equal", 1, 4))
sketch5.addConstraint(Sketcher.Constraint("Equal", 3, 5))
sketch5.addConstraint(Sketcher.Constraint("Angle", 0, Q("150 deg")))
sketch5.addConstraint(Sketcher.Constraint("Distance", 1, Q("3 mm")))
sketch5.addConstraint(Sketcher.Constraint("DistanceY", 6, 2, 1, 2, Q("20 mm")))
pad2 = body.newObject("PartDesign::Pad", "Pad001")
pad2.Profile = sketch5
pad2.Length = 13

sketch6 = body.newObject("Sketcher::SketchObject", "Sketch005")
sketch6.AttachmentSupport = (doc.getObject("XZ_Plane"), [""])
sketch6.MapMode = "FlatFace"
sketch6.AttachmentOffset = App.Placement(Vector(0, 0, 10), App.Rotation())
add_polygon(sketch6, [(-11.3, -16.6), (-8.7, -18.1), (-6.2, -13.7), (-8.8, -12.2)])
add_polygon(sketch6, [(13.7, -6.2), (12.2, -8.8), (16.6, -11.3), (18.1, -8.7)])
add_polygon(sketch6, [(11.3, 16.6), (8.7, 18.1), (6.2, 13.7), (8.8, 12.2)])
add_polygon(sketch6, [(-13.7, 6.2), (-12.2, 8.8), (-16.6, 11.3), (-18.1, 8.7)])
sketch6.addConstraint(Sketcher.Constraint("Symmetric", 0, 2, 8, 2, -1, 1))
sketch6.addConstraint(Sketcher.Constraint("Symmetric", 1, 2, 9, 2, -1, 1))
sketch6.addConstraint(Sketcher.Constraint("Symmetric", 2, 2, 10, 2, -1, 1))
sketch6.addConstraint(Sketcher.Constraint("Symmetric", 3, 2, 11, 2, -1, 1))
sketch6.addConstraint(Sketcher.Constraint("Symmetric", 4, 2, 12, 2, -1, 1))
sketch6.addConstraint(Sketcher.Constraint("Symmetric", 5, 2, 13, 2, -1, 1))
sketch6.addConstraint(Sketcher.Constraint("Symmetric", 6, 2, 14, 2, -1, 1))
sketch6.addConstraint(Sketcher.Constraint("Symmetric", 7, 2, 15, 2, -1, 1))
sketch6.addConstraint(Sketcher.Constraint("Perpendicular", 0, 1))
sketch6.addConstraint(Sketcher.Constraint("Perpendicular", 1, 2))
sketch6.addConstraint(Sketcher.Constraint("Perpendicular", 2, 3))
sketch6.addConstraint(Sketcher.Constraint("Parallel", 3, 4))
sketch6.addConstraint(Sketcher.Constraint("Perpendicular", 4, 5))
sketch6.addConstraint(Sketcher.Constraint("Perpendicular", 5, 6))
sketch6.addConstraint(Sketcher.Constraint("Perpendicular", 6, 7))
sketch6.addConstraint(Sketcher.Constraint("Equal", 2, 4))
sketch6.addConstraint(Sketcher.Constraint("Equal", 3, 5))
sketch6.addConstraint(Sketcher.Constraint("Angle", 0, Q("-30 deg")))
sketch6.addConstraint(Sketcher.Constraint("Distance", 0, Q("3 mm")))
sketch6.addConstraint(Sketcher.Constraint("Distance", 1, Q("5 mm")))
sketch6.addConstraint(Sketcher.Constraint("DistanceX", 2, 2, 8, 2, Q("17.5 mm")))
sketch6.addConstraint(Sketcher.Constraint("DistanceY", 0, 2, -1, 1, Q("18.070508 mm")))
sketch6.addConstraint(Sketcher.Constraint("DistanceX", -1, 1, 4, 2, Q("12.240381 mm")))
sketch6.addConstraint(Sketcher.Constraint("DistanceY", 4, 2, -1, 1, Q("8.799038 mm")))
pad3 = body.newObject("PartDesign::Pad", "Pad002")
pad3.Profile = sketch6
pad3.Length = 3
doc.recompute()

fillet = body.newObject("PartDesign::Fillet", "Fillet")
fillet.Base = (pad3, edges_at(pad3, [
    (-8.56, 0, 6.674),
    (4.076, 0, 10.06),
    (10, 0, 17.321),
    (6.674, 0, 8.56),
    (10.06, 0, -4.076),
    (17.321, 0, -10),
    (8.56, 0, -6.674),
    (-4.076, 0, -10.06),
    (-10, 0, -17.321),
    (-6.674, 0, -8.56),
    (-10.06, 0, 4.076),
    (-17.321, 0, 10),
]))
fillet.Radius = 1

doc.recompute()
